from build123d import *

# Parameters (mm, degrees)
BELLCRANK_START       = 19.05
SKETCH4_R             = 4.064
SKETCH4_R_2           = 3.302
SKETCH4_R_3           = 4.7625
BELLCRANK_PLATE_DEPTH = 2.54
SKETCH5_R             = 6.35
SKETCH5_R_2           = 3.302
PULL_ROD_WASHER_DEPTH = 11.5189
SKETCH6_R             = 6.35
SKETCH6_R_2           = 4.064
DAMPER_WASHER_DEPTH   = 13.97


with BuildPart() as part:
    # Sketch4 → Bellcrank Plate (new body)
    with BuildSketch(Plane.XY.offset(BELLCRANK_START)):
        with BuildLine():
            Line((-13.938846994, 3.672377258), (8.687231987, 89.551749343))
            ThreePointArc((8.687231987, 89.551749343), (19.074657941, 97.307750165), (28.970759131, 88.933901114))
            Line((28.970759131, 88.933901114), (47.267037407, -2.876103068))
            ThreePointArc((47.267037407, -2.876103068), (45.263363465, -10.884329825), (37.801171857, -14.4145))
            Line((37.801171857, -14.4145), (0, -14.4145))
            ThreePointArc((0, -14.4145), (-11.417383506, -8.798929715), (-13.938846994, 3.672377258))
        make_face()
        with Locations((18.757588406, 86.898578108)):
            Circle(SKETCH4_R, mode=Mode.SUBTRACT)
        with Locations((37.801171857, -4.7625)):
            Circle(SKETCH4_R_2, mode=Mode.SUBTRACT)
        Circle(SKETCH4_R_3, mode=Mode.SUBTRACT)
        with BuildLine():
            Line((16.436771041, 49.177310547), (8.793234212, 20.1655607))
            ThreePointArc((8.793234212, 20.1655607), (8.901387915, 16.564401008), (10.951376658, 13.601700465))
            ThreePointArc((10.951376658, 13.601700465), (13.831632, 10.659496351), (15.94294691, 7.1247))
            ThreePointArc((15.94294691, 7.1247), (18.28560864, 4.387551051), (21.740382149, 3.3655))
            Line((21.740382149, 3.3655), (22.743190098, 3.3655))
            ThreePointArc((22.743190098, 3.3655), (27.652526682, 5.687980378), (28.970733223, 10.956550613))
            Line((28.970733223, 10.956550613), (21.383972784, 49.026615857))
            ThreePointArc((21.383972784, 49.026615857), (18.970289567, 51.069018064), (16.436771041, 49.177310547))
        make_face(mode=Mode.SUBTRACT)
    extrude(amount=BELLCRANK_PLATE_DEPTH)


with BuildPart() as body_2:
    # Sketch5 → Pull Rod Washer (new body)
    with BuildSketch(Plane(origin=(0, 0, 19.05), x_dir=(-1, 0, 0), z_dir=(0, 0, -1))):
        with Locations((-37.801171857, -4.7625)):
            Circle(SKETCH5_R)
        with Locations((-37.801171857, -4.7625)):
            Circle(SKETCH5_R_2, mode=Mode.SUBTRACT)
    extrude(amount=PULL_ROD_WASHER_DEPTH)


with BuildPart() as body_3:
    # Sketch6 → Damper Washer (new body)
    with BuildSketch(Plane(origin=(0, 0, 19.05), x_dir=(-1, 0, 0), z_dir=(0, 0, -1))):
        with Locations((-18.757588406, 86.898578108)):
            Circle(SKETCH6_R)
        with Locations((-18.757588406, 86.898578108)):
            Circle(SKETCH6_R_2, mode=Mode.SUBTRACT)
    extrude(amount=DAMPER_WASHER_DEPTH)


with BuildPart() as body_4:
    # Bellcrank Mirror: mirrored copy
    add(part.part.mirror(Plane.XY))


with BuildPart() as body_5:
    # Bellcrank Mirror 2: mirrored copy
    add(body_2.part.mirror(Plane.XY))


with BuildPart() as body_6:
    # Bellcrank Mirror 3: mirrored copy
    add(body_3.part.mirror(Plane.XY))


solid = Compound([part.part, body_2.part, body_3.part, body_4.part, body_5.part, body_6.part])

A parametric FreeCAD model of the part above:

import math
import FreeCAD as App
import Part
import Sketcher
from FreeCAD import Vector
Q = App.Units.Quantity

doc = App.newDocument("Part")
body = doc.addObject("PartDesign::Body", "Body")

sketch1 = doc.addObject("Sketcher::SketchObject", "Sketch")
body.addObject(sketch1)
sketch1.AttachmentSupport = (doc.XY_Plane, [""])
sketch1.MapMode = "FlatFace"
sketch1.AttachmentOffset = App.Placement(Vector(0, 0, 0.75 * 25.4), App.Rotation())
sketch1.addGeometry(Part.LineSegment(Vector(8.687232, 89.551749, 0), Vector(-13.938847, 3.672377, 0)), False)
sketch1.addGeometry(Part.ArcOfCircle(Part.Circle(Vector(0, 0, 0), Vector(0, 0, 1), 14.4145), math.radians(165.240063), math.radians(270)), False)
sketch1.addGeometry(Part.LineSegment(Vector(0, -14.4145, 0), Vector(37.801172, -14.4145, 0)), False)
sketch1.addGeometry(Part.ArcOfCircle(Part.Circle(Vector(37.801172, -4.7625, 0), Vector(0, 0, 1), 9.652), math.radians(-90), math.radians(11.270489)), False)
sketch1.addGeometry(Part.LineSegment(Vector(47.267037, -2.876103, 0), Vector(28.970759, 88.933901, 0)), False)
sketch1.addGeometry(Part.ArcOfCircle(Part.Circle(Vector(18.757588, 86.898578, 0), Vector(0, 0, 1), 10.414), math.radians(11.270489), math.radians(165.240063)), False)
sketch1.addGeometry(Part.Circle(Vector(37.801172, -4.7625, 0), Vector(0, 0, 1), 3.302), False)
sketch1.addGeometry(Part.ArcOfCircle(Part.Circle(Vector(18.892956, 48.530196, 0), Vector(0, 0, 1), 2.54), math.radians(11.270489), math.radians(165.240063)), False)
sketch1.addGeometry(Part.LineSegment(Vector(21.383973, 49.026616, 0), Vector(28.970733, 10.956551, 0)), False)
sketch1.addGeometry(Part.ArcOfCircle(Part.Circle(Vector(22.74319, 9.7155, 0), Vector(0, 0, 1), 6.35), math.radians(-90), math.radians(11.270489)), False)
sketch1.addGeometry(Part.LineSegment(Vector(22.74319, 3.3655, 0), Vector(21.740382, 3.3655, 0)), False)
sketch1.addGeometry(Part.ArcOfCircle(Part.Circle(Vector(21.740382, 9.7155, 0), Vector(0, 0, 1), 6.35), math.radians(-155.92074), math.radians(-90)), False)
sketch1.addGeometry(Part.ArcOfCircle(Part.Circle(Vector(0, 0, 0), Vector(0, 0, 1), 17.4625), math.radians(24.07926), math.radians(51.160803)), False)
sketch1.addGeometry(Part.ArcOfCircle(Part.Circle(Vector(14.933695, 18.547773, 0), Vector(0, 0, 1), 6.35), math.radians(165.240063), math.radians(231.160803)), False)
sketch1.addGeometry(Part.LineSegment(Vector(8.793234, 20.165561, 0), Vector(16.436771, 49.177311, 0)), False)
sketch1.addGeometry(Part.Circle(Vector(0, 0, 0), Vector(0, 0, 1), 4.7625), False)
sketch1.addGeometry(Part.Circle(Vector(18.757588, 86.898578, 0), Vector(0, 0, 1), 4.064), False)
sketch1.addConstraint(Sketcher.Constraint("Coincident", 0, 2, 1, 1))
sketch1.addConstraint(Sketcher.Constraint("Coincident", 1, 2, 2, 1))
sketch1.addConstraint(Sketcher.Constraint("Coincident", 2, 2, 3, 1))
sketch1.addConstraint(Sketcher.Constraint("Coincident", 3, 2, 4, 1))
sketch1.addConstraint(Sketcher.Constraint("Coincident", 4, 2, 5, 1))
sketch1.addConstraint(Sketcher.Constraint("Coincident", 5, 2, 0, 1))
sketch1.addConstraint(Sketcher.Constraint("Coincident", 7, 1, 8, 1))
sketch1.addConstraint(Sketcher.Constraint("Coincident", 8, 2, 9, 2))
sketch1.addConstraint(Sketcher.Constraint("Coincident", 9, 1, 10, 1))
sketch1.addConstraint(Sketcher.Constraint("Coincident", 10, 2, 11, 2))
sketch1.addConstraint(Sketcher.Constraint("Coincident", 11, 1, 12, 1))
sketch1.addConstraint(Sketcher.Constraint("Coincident", 12, 2, 13, 2))
sketch1.addConstraint(Sketcher.Constraint("Coincident", 13, 1, 14, 1))
sketch1.addConstraint(Sketcher.Constraint("Coincident", 14, 2, 7, 2))
sketch1.addConstraint(Sketcher.Constraint("Horizontal", 2))
sketch1.addConstraint(Sketcher.Constraint("Horizontal", 10))
sketch1.addConstraint(Sketcher.Constraint("Coincident", 1, 3, -1, 1))
sketch1.addConstraint(Sketcher.Constraint("Coincident", 12, 3, -1, 1))
sketch1.addConstraint(Sketcher.Constraint("Coincident", 15, 3, -1, 1))
sketch1.addConstraint(Sketcher.Constraint("Coincident", 6, 3, 3, 3))
sketch1.addConstraint(Sketcher.Constraint("Coincident", 16, 3, 5, 3))
sketch1.addConstraint(Sketcher.Constraint("PointOnObject", 1, 2, -2))
sketch1.addConstraint(Sketcher.Constraint("Radius", 7, Q("0.1 in")))
sketch1.addConstraint(Sketcher.Constraint("Diameter", 6, Q("0.26 in")))
sketch1.addConstraint(Sketcher.Constraint("Diameter", 16, Q("0.32 in")))
sketch1.addConstraint(Sketcher.Constraint("Radius", 3, Q("0.38 in")))
sketch1.addConstraint(Sketcher.Constraint("Radius", 5, Q("0.41 in")))
sketch1.addConstraint(Sketcher.Constraint("Radius", 9, Q("0.25 in")))
sketch1.addConstraint(Sketcher.Constraint("Radius", 11, Q("0.25 in")))
sketch1.addConstraint(Sketcher.Constraint("Radius", 13, Q("0.25 in")))
sketch1.addConstraint(Sketcher.Constraint("Diameter", 15, Q("0.375 in")))
sketch1.addConstraint(Sketcher.Constraint("Radius", 12, Q("0.6875 in")))
sketch1.addConstraint(Sketcher.Constraint("Radius", 1, Q("0.5675 in")))
sketch1.addConstraint(Sketcher.Constraint("DistanceY", 3, 3, 9, 3, Q("0.57 in")))
sketch1.addConstraint(Sketcher.Constraint("DistanceY", 11, 1, 11, 3, Q("0.102 in")))
sketch1.addConstraint(Sketcher.Constraint("DistanceY", 11, 1, 12, 2, Q("0.255 in")))
sketch1.addConstraint(Sketcher.Constraint("DistanceX", 5, 2, 7, 3, Q("0.4018001 in")))
sketch1.addConstraint(Sketcher.Constraint("DistanceX", 14, 2, 7, 3, Q("0.0967002 in")))
sketch1.addConstraint(Sketcher.Constraint("DistanceX", 2, 1, 2, 2, 37.801172))
sketch1.addConstraint(Sketcher.Constraint("DistanceY", -1, 1, 4, 2, 88.933901))
sketch1.addConstraint(Sketcher.Constraint("DistanceX", 5, 3, 9, 3, 3.985602))
sketch1.addConstraint(Sketcher.Constraint("DistanceX", 14, 2, 7, 1, 4.947202))
sketch1.addConstraint(Sketcher.Constraint("DistanceX", 10, 2, 10, 1, 1.002808))
sketch1.addConstraint(Sketcher.Constraint("DistanceX", -1, 1, 3, 3, 37.801172))
sketch1.addConstraint(Sketcher.Constraint("DistanceX", -1, 1, 5, 3, 18.757588))
sketch1.addConstraint(Sketcher.Constraint("DistanceY", -1, 1, 5, 3, 86.898578))
sketch1.addConstraint(Sketcher.Constraint("DistanceX", -1, 1, 5, 2, 8.687232))
sketch1.addConstraint(Sketcher.Constraint("DistanceY", -1, 1, 8, 2, 10.956551))
sketch1.addConstraint(Sketcher.Constraint("DistanceX", -1, 1, 9, 1, 22.74319))
sketch1.addConstraint(Sketcher.Constraint("DistanceY", -1, 1, 13, 1, 20.165561))
sketch1.addConstraint(Sketcher.Constraint("DistanceY", -1, 1, 14, 2, 49.177311))
sketch1.addConstraint(Sketcher.Constraint("DistanceX", 13, 3, 7, 3, 3.95926))
sketch1.addConstraint(Sketcher.Constraint("DistanceX", 0, 2, 11, 3, 35.679229))
sketch1.addConstraint(Sketcher.Constraint("Distance", 4, 93.615334))
pad1 = doc.addObject("PartDesign::Pad", "Pad")
body.addObject(pad1)
pad1.Profile = sketch1
pad1.Length = Q("0.1 in")
body2 = doc.addObject("PartDesign::Body", "Body001")

sketch2 = doc.addObject("Sketcher::SketchObject", "Sketch001")
body2.addObject(sketch2)
sketch2.AttachmentSupport = (doc.getObject("XY_Plane001"), [""])
sketch2.MapMode = "FlatFace"
sketch2.AttachmentOffset = App.Placement(Vector(0, 0, 0.75 * 25.4), App.Rotation())
sketch2.addGeometry(Part.Circle(Vector(37.801172, -4.7625, 0), Vector(0, 0, 1), 6.35), False)
sketch2.addGeometry(Part.Circle(Vector(37.801172, -4.7625, 0), Vector(0, 0, 1), 3.302), False)
sketch2.addConstraint(Sketcher.Constraint("Coincident", 1, 3, 0, 3))
sketch2.addConstraint(Sketcher.Constraint("Diameter", 0, Q("0.5 in")))
sketch2.addConstraint(Sketcher.Constraint("Diameter", 1, Q("0.26 in")))
sketch2.addConstraint(Sketcher.Constraint("DistanceY", 0, 3, -1, 1, Q("0.1875 in")))
sketch2.addConstraint(Sketcher.Constraint("DistanceX", -1, 1, 0, 3, 37.801172))
pad2 = doc.addObject("PartDesign::Pad", "Pad001")
body2.addObject(pad2)
pad2.Profile = sketch2
pad2.Length = Q("0.4535 in")
pad2.Reversed = True
body3 = doc.addObject("PartDesign::Body", "Body002")

sketch3 = doc.addObject("Sketcher::SketchObject", "Sketch002")
body3.addObject(sketch3)
sketch3.AttachmentSupport = (doc.getObject("XY_Plane002"), [""])
sketch3.MapMode = "FlatFace"
sketch3.AttachmentOffset = App.Placement(Vector(0, 0, 0.75 * 25.4), App.Rotation())
sketch3.addGeometry(Part.Circle(Vector(18.757588, 86.898578, 0), Vector(0, 0, 1), 6.35), False)
sketch3.addGeometry(Part.Circle(Vector(18.757588, 86.898578, 0), Vector(0, 0, 1), 4.064), False)
sketch3.addConstraint(Sketcher.Constraint("Coincident", 1, 3, 0, 3))
sketch3.addConstraint(Sketcher.Constraint("Diameter", 0, Q("0.5 in")))
sketch3.addConstraint(Sketcher.Constraint("Diameter", 1, Q("0.32 in")))
sketch3.addConstraint(Sketcher.Constraint("DistanceX", -1, 1, 0, 3, 18.757588))
sketch3.addConstraint(Sketcher.Constraint("DistanceY", -1, 1, 0, 3, 86.898578))
pad3 = doc.addObject("PartDesign::Pad", "Pad002")
body3.addObject(pad3)
pad3.Profile = sketch3
pad3.Length = Q("0.55 in")
pad3.Reversed = True
body4 = doc.addObject("PartDesign::Body", "Body003")
doc.recompute()

mirroring = doc.addObject("Part::Mirroring", "Mirroring")
mirroring.Source = body
mirroring.Base = Vector(0, 0, 0)
mirroring.Normal = Vector(0, 0, 1)
body4.BaseFeature = mirroring
doc.recompute()
body5 = doc.addObject("PartDesign::Body", "Body004")
doc.recompute()

mirroring2 = doc.addObject("Part::Mirroring", "Mirroring001")
mirroring2.Source = body2
mirroring2.Base = Vector(0, 0, 0)
mirroring2.Normal = Vector(0, 0, 1)
body5.BaseFeature = mirroring2
doc.recompute()
body6 = doc.addObject("PartDesign::Body", "Body005")
doc.recompute()

mirroring3 = doc.addObject("Part::Mirroring", "Mirroring002")
mirroring3.Source = body3
mirroring3.Base = Vector(0, 0, 0)
mirroring3.Normal = Vector(0, 0, 1)
body6.BaseFeature = mirroring3
doc.recompute()
mirroring.Visibility = False
mirroring2.Visibility = False
mirroring3.Visibility = False

doc.recompute()
